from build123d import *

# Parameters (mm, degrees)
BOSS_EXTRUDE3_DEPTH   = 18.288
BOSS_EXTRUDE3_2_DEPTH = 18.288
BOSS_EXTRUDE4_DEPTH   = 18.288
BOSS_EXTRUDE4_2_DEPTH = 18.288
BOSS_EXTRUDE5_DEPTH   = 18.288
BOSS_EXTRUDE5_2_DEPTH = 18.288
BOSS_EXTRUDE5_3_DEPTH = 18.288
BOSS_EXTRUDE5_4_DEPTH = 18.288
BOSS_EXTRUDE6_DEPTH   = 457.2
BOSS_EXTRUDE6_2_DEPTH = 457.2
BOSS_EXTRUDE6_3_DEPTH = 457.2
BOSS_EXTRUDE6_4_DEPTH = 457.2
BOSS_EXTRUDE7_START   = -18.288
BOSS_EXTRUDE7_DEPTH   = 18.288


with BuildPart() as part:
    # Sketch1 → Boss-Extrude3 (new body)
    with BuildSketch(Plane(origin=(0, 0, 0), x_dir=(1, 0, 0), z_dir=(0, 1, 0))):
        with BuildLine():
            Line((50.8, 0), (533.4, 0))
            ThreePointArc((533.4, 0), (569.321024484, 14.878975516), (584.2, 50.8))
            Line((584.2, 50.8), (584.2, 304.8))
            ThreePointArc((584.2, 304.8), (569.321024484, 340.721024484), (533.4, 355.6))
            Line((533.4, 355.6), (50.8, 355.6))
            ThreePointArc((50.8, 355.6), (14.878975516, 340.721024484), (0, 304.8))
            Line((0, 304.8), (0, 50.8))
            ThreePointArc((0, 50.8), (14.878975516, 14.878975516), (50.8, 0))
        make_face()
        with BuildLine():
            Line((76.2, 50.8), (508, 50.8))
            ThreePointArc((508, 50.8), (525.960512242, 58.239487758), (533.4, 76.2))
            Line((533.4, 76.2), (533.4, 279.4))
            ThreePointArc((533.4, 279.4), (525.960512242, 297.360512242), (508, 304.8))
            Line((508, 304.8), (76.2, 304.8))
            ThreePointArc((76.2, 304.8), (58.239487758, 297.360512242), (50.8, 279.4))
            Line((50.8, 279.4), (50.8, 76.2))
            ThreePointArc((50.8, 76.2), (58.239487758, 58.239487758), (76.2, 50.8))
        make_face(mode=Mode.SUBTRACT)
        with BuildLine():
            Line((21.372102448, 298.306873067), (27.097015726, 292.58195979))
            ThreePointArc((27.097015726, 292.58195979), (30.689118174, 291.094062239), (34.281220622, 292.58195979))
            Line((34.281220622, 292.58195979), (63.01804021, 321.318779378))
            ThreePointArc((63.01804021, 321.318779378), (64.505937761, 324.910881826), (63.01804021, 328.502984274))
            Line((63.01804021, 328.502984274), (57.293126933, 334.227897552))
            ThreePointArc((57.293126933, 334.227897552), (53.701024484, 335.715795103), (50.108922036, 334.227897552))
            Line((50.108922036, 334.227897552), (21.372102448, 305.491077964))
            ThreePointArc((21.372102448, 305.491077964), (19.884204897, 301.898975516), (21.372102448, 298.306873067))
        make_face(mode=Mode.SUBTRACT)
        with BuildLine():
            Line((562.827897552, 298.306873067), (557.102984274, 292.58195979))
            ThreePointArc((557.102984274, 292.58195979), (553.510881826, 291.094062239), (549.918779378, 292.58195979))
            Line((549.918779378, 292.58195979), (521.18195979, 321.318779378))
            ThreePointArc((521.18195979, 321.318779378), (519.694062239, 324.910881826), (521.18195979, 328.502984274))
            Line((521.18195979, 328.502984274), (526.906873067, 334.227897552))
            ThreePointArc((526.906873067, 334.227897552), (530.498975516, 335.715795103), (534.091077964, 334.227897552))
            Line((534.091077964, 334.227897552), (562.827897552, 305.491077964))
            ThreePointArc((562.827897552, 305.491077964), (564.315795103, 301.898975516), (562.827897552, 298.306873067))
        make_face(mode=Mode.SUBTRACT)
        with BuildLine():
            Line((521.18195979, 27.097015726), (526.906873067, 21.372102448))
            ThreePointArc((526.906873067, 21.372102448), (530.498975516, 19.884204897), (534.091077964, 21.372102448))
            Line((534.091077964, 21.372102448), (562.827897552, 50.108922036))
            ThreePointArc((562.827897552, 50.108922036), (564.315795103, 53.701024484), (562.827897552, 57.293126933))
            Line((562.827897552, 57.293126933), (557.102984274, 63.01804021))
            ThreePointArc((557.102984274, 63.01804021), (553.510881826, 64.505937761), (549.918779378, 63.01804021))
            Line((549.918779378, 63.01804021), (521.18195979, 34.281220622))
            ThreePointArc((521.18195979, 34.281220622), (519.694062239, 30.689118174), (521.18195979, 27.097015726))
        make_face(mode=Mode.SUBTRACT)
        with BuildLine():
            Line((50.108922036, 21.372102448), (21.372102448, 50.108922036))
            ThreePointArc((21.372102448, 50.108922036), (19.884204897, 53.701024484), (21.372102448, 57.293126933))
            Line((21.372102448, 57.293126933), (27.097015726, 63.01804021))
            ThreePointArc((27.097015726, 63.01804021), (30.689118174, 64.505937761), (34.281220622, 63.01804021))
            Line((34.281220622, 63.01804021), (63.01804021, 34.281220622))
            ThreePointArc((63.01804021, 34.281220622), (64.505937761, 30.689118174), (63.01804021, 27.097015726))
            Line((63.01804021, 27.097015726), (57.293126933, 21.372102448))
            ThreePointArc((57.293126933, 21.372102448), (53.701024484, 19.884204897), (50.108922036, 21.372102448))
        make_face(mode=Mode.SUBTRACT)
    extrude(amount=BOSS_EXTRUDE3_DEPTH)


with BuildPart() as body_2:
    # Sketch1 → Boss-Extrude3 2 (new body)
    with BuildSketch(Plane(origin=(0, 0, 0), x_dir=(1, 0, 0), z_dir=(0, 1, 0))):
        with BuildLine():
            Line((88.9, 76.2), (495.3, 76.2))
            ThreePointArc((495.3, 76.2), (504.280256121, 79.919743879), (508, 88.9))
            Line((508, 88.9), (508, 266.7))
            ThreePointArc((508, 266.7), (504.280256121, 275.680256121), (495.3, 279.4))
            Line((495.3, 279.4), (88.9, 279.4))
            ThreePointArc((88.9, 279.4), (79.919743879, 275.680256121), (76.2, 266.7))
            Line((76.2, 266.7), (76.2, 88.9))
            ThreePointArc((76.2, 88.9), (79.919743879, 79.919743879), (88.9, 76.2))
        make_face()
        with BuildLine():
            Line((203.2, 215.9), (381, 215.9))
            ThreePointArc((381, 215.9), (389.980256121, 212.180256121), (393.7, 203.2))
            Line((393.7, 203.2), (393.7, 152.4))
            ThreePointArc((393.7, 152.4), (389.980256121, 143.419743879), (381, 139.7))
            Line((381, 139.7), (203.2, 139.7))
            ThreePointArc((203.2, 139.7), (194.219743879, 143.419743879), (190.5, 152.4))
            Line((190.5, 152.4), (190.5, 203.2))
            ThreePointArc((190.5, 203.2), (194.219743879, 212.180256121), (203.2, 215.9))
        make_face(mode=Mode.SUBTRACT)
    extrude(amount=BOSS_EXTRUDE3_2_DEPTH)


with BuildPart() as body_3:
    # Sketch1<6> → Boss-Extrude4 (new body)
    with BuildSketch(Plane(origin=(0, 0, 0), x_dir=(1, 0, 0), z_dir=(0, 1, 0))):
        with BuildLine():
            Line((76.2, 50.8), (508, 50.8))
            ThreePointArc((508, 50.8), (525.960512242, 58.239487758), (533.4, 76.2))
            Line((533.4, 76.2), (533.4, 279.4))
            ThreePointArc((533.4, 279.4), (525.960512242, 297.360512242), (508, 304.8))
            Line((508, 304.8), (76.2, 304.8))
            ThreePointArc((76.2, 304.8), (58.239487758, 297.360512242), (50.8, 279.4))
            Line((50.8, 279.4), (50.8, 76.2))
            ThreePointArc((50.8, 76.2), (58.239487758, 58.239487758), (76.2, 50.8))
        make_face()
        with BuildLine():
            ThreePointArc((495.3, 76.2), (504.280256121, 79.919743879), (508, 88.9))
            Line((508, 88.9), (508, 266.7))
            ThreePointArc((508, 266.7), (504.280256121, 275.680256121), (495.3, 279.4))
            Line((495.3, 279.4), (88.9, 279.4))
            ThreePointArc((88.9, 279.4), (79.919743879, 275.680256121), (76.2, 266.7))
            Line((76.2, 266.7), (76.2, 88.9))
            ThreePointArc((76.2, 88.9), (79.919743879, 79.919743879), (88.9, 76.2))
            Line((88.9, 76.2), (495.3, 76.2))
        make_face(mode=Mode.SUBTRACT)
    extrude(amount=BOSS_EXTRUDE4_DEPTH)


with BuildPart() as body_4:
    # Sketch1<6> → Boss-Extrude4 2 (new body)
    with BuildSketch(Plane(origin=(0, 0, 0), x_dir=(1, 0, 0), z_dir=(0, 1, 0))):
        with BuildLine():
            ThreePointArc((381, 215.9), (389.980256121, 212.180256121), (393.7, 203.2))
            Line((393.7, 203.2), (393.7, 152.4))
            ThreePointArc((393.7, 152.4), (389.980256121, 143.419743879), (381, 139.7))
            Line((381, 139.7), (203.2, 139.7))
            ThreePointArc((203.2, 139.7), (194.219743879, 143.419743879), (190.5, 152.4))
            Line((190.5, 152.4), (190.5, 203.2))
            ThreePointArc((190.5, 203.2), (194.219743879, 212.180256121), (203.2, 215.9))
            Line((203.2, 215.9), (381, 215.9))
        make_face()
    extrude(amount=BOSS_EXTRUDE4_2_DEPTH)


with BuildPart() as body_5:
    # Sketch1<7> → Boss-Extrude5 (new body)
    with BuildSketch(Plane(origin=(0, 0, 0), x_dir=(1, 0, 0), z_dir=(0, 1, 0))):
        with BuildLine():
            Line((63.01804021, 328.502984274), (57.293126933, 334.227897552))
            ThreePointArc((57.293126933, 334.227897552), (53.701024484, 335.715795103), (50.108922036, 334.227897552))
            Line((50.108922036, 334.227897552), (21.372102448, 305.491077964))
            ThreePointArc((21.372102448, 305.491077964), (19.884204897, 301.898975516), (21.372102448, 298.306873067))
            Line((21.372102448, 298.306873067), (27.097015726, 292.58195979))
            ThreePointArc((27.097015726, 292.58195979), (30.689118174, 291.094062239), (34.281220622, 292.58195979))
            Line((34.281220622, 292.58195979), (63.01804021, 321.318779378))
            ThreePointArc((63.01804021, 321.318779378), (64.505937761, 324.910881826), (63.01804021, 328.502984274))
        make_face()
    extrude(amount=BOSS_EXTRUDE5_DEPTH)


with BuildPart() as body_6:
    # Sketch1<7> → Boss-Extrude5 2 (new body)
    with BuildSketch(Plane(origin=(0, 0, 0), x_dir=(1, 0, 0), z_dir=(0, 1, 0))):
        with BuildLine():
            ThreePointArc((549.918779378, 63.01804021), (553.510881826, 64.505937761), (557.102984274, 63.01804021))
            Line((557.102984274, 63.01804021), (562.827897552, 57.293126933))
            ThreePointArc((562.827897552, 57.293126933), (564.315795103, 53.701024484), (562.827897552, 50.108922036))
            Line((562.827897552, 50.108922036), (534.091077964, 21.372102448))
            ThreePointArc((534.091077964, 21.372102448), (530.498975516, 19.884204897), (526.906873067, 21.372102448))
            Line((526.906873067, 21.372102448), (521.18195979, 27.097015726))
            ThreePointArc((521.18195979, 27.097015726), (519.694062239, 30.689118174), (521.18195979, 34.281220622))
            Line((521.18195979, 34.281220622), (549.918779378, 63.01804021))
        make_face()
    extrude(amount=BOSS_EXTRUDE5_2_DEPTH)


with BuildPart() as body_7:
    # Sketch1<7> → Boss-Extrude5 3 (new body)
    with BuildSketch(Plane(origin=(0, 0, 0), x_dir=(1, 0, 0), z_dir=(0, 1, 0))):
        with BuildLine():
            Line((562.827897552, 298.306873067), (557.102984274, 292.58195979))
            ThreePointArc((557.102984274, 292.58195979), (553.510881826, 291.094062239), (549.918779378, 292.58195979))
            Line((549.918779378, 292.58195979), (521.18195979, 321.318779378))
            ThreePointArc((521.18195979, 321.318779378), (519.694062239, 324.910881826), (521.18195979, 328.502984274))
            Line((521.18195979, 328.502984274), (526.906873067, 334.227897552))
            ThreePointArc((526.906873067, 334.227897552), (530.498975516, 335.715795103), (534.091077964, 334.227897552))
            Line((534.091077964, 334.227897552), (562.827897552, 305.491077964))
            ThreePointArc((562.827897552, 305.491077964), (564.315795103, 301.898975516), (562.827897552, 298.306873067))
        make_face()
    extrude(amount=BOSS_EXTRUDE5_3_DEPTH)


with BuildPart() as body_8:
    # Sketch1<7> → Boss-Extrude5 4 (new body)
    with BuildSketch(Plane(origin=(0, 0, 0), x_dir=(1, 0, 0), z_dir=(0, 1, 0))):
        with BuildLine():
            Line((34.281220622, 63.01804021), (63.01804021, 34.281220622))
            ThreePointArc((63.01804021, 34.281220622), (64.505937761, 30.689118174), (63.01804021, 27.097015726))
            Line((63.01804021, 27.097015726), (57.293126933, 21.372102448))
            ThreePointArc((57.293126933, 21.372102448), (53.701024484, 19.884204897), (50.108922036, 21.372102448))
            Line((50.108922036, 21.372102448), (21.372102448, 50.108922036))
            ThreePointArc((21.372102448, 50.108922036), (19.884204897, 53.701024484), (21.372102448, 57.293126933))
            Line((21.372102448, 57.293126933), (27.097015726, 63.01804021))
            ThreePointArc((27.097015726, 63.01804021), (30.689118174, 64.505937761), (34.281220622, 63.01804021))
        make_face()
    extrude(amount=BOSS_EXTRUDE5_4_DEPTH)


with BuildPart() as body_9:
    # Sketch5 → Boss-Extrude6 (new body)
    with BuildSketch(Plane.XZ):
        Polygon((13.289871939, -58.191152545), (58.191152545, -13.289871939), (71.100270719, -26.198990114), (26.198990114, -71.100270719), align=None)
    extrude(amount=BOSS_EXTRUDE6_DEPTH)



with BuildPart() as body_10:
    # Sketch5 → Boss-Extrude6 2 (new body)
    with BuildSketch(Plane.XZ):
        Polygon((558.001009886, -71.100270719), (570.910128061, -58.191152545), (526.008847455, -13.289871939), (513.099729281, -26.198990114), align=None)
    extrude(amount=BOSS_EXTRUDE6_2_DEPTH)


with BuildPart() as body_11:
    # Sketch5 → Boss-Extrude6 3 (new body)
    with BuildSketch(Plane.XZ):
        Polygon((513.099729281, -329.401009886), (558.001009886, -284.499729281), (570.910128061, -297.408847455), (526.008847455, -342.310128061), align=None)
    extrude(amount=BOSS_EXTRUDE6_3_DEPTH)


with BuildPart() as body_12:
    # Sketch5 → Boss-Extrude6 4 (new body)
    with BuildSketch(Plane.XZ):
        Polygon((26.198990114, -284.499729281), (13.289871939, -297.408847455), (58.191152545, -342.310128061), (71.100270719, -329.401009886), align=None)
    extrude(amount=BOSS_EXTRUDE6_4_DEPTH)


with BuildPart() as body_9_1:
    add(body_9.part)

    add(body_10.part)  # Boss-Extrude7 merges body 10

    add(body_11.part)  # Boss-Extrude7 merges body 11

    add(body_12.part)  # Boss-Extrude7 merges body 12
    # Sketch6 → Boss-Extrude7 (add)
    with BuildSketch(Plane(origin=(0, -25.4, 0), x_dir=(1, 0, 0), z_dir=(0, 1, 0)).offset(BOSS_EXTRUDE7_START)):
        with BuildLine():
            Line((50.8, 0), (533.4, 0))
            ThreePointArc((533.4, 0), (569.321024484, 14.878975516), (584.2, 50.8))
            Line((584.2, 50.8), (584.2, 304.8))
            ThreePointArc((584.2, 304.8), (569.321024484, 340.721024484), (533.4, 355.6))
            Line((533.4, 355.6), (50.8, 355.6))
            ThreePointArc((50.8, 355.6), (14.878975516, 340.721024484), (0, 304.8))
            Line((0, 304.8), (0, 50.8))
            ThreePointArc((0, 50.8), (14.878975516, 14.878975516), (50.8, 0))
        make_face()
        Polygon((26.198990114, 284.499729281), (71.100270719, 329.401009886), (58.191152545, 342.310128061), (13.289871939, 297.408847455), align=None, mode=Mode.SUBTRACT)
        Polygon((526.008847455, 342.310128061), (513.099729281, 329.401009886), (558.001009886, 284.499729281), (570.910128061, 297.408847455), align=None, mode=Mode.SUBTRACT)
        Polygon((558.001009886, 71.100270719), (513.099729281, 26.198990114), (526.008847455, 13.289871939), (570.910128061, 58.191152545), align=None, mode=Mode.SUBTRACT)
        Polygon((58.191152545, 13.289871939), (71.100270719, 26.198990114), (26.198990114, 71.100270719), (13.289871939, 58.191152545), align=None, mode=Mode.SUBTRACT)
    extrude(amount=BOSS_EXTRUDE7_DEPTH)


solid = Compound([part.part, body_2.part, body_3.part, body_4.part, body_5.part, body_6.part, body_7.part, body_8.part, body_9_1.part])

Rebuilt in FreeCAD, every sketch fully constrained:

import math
import FreeCAD as App
import Part
import Sketcher
from FreeCAD import Vector
Q = App.Units.Quantity


def add_polygon(sketch, points):
    """Adds a closed chain of lines whose ends are joined by coincident constraints."""
    first, n = sketch.GeometryCount, len(points)
    for a, b in zip(points, points[1:] + points[:1]):
        sketch.addGeometry(Part.LineSegment(App.Vector(*a, 0), App.Vector(*b, 0)), False)
    for i in range(n):
        sketch.addConstraint(Sketcher.Constraint("Coincident", first + i, 2, first + (i + 1) % n, 1))

doc = App.newDocument("Part")
body = doc.addObject("PartDesign::Body", "Body")

# Sketch on XZ plane
sketch1 = body.newObject("Sketcher::SketchObject", "Sketch")
sketch1.AttachmentSupport = (doc.getObject("XZ_Plane"), [""])
sketch1.MapMode = "FlatFace"
sketch1.addGeometry([
    Part.LineSegment(Vector(50.8, 0, 0), Vector(533.4, 0, 0)),  # 0
    Part.ArcOfCircle(Part.Circle(Vector(533.4, -50.8, 0), Vector(0, 0, 1), 50.8), math.radians(0), math.radians(90)),  # 1
    Part.LineSegment(Vector(584.2, -50.8, 0), Vector(584.2, -304.8, 0)),  # 2
    Part.ArcOfCircle(Part.Circle(Vector(533.4, -304.8, 0), Vector(0, 0, 1), 50.8), math.radians(-90), math.radians(0)),  # 3
    Part.LineSegment(Vector(533.4, -355.6, 0), Vector(50.8, -355.6, 0)),  # 4
    Part.ArcOfCircle(Part.Circle(Vector(50.8, -304.8, 0), Vector(0, 0, 1), 50.8), math.radians(-180), math.radians(-90)),  # 5
    Part.LineSegment(Vector(0, -304.8, 0), Vector(0, -50.8, 0)),  # 6
    Part.ArcOfCircle(Part.Circle(Vector(50.8, -50.8, 0), Vector(0, 0, 1), 50.8), math.radians(90), math.radians(180)),  # 7
    Part.ArcOfCircle(Part.Circle(Vector(53.701024, -24.964205, 0), Vector(0, 0, 1), 5.08), math.radians(45), math.radians(135)),  # 8
    Part.LineSegment(Vector(50.108922, -21.372102, 0), Vector(21.372102, -50.108922, 0)),  # 9
    Part.ArcOfCircle(Part.Circle(Vector(24.964205, -53.701024, 0), Vector(0, 0, 1), 5.08), math.radians(135), math.radians(225)),  # 10
    Part.LineSegment(Vector(21.372102, -57.293127, 0), Vector(27.097016, -63.01804, 0)),  # 11
    Part.ArcOfCircle(Part.Circle(Vector(30.689118, -59.425938, 0), Vector(0, 0, 1), 5.08), math.radians(-135), math.radians(-45)),  # 12
    Part.LineSegment(Vector(34.281221, -63.01804, 0), Vector(63.01804, -34.281221, 0)),  # 13
    Part.ArcOfCircle(Part.Circle(Vector(59.425938, -30.689118, 0), Vector(0, 0, 1), 5.08), math.radians(-45), math.radians(45)),  # 14
    Part.LineSegment(Vector(63.01804, -27.097016, 0), Vector(57.293127, -21.372102, 0)),  # 15
    Part.LineSegment(Vector(526.906873, -21.372102, 0), Vector(521.18196, -27.097016, 0)),  # 16
    Part.ArcOfCircle(Part.Circle(Vector(524.774062, -30.689118, 0), Vector(0, 0, 1), 5.08), math.radians(135), math.radians(225)),  # 17
    Part.LineSegment(Vector(521.18196, -34.281221, 0), Vector(549.918779, -63.01804, 0)),  # 18
    Part.ArcOfCircle(Part.Circle(Vector(553.510882, -59.425938, 0), Vector(0, 0, 1), 5.08), math.radians(-135), math.radians(-45)),  # 19
    Part.LineSegment(Vector(557.102984, -63.01804, 0), Vector(562.827898, -57.293127, 0)),  # 20
    Part.ArcOfCircle(Part.Circle(Vector(559.235795, -53.701024, 0), Vector(0, 0, 1), 5.08), math.radians(-45), math.radians(45)),  # 21
    Part.LineSegment(Vector(562.827898, -50.108922, 0), Vector(534.091078, -21.372102, 0)),  # 22
    Part.ArcOfCircle(Part.Circle(Vector(530.498976, -24.964205, 0), Vector(0, 0, 1), 5.08), math.radians(45), math.radians(135)),  # 23
    Part.LineSegment(Vector(27.097016, -292.58196, 0), Vector(21.372102, -298.306873, 0)),  # 24
    Part.ArcOfCircle(Part.Circle(Vector(24.964205, -301.898976, 0), Vector(0, 0, 1), 5.08), math.radians(135), math.radians(225)),  # 25
    Part.LineSegment(Vector(21.372102, -305.491078, 0), Vector(50.108922, -334.227898, 0)),  # 26
    Part.ArcOfCircle(Part.Circle(Vector(53.701024, -330.635795, 0), Vector(0, 0, 1), 5.08), math.radians(-135), math.radians(-45)),  # 27
    Part.LineSegment(Vector(57.293127, -334.227898, 0), Vector(63.01804, -328.502984, 0)),  # 28
    Part.ArcOfCircle(Part.Circle(Vector(59.425938, -324.910882, 0), Vector(0, 0, 1), 5.08), math.radians(-45), math.radians(45)),  # 29
    Part.LineSegment(Vector(63.01804, -321.318779, 0), Vector(34.281221, -292.58196, 0)),  # 30
    Part.ArcOfCircle(Part.Circle(Vector(30.689118, -296.174062, 0), Vector(0, 0, 1), 5.08), math.radians(45), math.radians(135)),  # 31
    Part.LineSegment(Vector(508, -50.8, 0), Vector(76.2, -50.8, 0)),  # 32
    Part.ArcOfCircle(Part.Circle(Vector(76.2, -76.2, 0), Vector(0, 0, 1), 25.4), math.radians(90), math.radians(180)),  # 33
    Part.LineSegment(Vector(50.8, -76.2, 0), Vector(50.8, -279.4, 0)),  # 34
    Part.ArcOfCircle(Part.Circle(Vector(76.2, -279.4, 0), Vector(0, 0, 1), 25.4), math.radians(180), math.radians(270)),  # 35
    Part.LineSegment(Vector(76.2, -304.8, 0), Vector(508, -304.8, 0)),  # 36
    Part.ArcOfCircle(Part.Circle(Vector(508, -279.4, 0), Vector(0, 0, 1), 25.4), math.radians(-90), math.radians(0)),  # 37
    Part.LineSegment(Vector(533.4, -279.4, 0), Vector(533.4, -76.2, 0)),  # 38
    Part.ArcOfCircle(Part.Circle(Vector(508, -76.2, 0), Vector(0, 0, 1), 25.4), math.radians(0), math.radians(90)),  # 39
    Part.ArcOfCircle(Part.Circle(Vector(559.235795, -301.898976, 0), Vector(0, 0, 1), 5.08), math.radians(-45), math.radians(45)),  # 40
    Part.LineSegment(Vector(562.827898, -298.306873, 0), Vector(557.102984, -292.58196, 0)),  # 41
    Part.ArcOfCircle(Part.Circle(Vector(553.510882, -296.174062, 0), Vector(0, 0, 1), 5.08), math.radians(45), math.radians(135)),  # 42
    Part.LineSegment(Vector(549.918779, -292.58196, 0), Vector(521.18196, -321.318779, 0)),  # 43
    Part.ArcOfCircle(Part.Circle(Vector(524.774062, -324.910882, 0), Vector(0, 0, 1), 5.08), math.radians(135), math.radians(225)),  # 44
    Part.LineSegment(Vector(521.18196, -328.502984, 0), Vector(526.906873, -334.227898, 0)),  # 45
    Part.ArcOfCircle(Part.Circle(Vector(530.498976, -330.635795, 0), Vector(0, 0, 1), 5.08), math.radians(-135), math.radians(-45)),  # 46
    Part.LineSegment(Vector(534.091078, -334.227898, 0), Vector(562.827898, -305.491078, 0)),  # 47
], False)
sketch1.addConstraint([
    Sketcher.Constraint("Tangent", 0, 2, 1, 2),
    Sketcher.Constraint("Tangent", 1, 1, 2, 1),
    Sketcher.Constraint("Tangent", 2, 2, 3, 2),
    Sketcher.Constraint("Tangent", 3, 1, 4, 1),
    Sketcher.Constraint("Tangent", 4, 2, 5, 2),
    Sketcher.Constraint("Tangent", 5, 1, 6, 1),
    Sketcher.Constraint("Tangent", 6, 2, 7, 2),
    Sketcher.Constraint("Tangent", 7, 1, 0, 1),
    Sketcher.Constraint("Tangent", 8, 2, 9, 1),
    Sketcher.Constraint("Tangent", 9, 2, 10, 1),
    Sketcher.Constraint("Tangent", 10, 2, 11, 1),
    Sketcher.Constraint("Tangent", 11, 2, 12, 1),
    Sketcher.Constraint("Tangent", 12, 2, 13, 1),
    Sketcher.Constraint("Tangent", 13, 2, 14, 1),
    Sketcher.Constraint("Tangent", 14, 2, 15, 1),
    Sketcher.Constraint("Tangent", 15, 2, 8, 1),
    Sketcher.Constraint("Tangent", 16, 2, 17, 1),
    Sketcher.Constraint("Tangent", 17, 2, 18, 1),
    Sketcher.Constraint("Tangent", 18, 2, 19, 1),
    Sketcher.Constraint("Tangent", 19, 2, 20, 1),
    Sketcher.Constraint("Tangent", 20, 2, 21, 1),
    Sketcher.Constraint("Tangent", 21, 2, 22, 1),
    Sketcher.Constraint("Tangent", 22, 2, 23, 1),
    Sketcher.Constraint("Tangent", 23, 2, 16, 1),
    Sketcher.Constraint("Tangent", 24, 2, 25, 1),
    Sketcher.Constraint("Tangent", 25, 2, 26, 1),
    Sketcher.Constraint("Tangent", 26, 2, 27, 1),
    Sketcher.Constraint("Tangent", 27, 2, 28, 1),
    Sketcher.Constraint("Tangent", 28, 2, 29, 1),
    Sketcher.Constraint("Tangent", 29, 2, 30, 1),
    Sketcher.Constraint("Tangent", 30, 2, 31, 1),
    Sketcher.Constraint("Tangent", 31, 2, 24, 1),
    Sketcher.Constraint("Tangent", 32, 2, 33, 1),
    Sketcher.Constraint("Tangent", 33, 2, 34, 1),
    Sketcher.Constraint("Tangent", 34, 2, 35, 1),
    Sketcher.Constraint("Tangent", 35, 2, 36, 1),
    Sketcher.Constraint("Tangent", 36, 2, 37, 1),
    Sketcher.Constraint("Tangent", 37, 2, 38, 1),
    Sketcher.Constraint("Tangent", 38, 2, 39, 1),
    Sketcher.Constraint("Tangent", 39, 2, 32, 1),
    Sketcher.Constraint("Tangent", 40, 2, 41, 1),
    Sketcher.Constraint("Tangent", 41, 2, 42, 1),
    Sketcher.Constraint("Tangent", 42, 2, 43, 1),
    Sketcher.Constraint("Tangent", 43, 2, 44, 1),
    Sketcher.Constraint("Tangent", 44, 2, 45, 1),
    Sketcher.Constraint("Tangent", 45, 2, 46, 1),
    Sketcher.Constraint("Tangent", 46, 2, 47, 1),
    Sketcher.Constraint("Tangent", 47, 2, 40, 1),
    Sketcher.Constraint("Horizontal", 0),
    Sketcher.Constraint("Vertical", 2),
    Sketcher.Constraint("Horizontal", 4),
    Sketcher.Constraint("Vertical", 6),
    Sketcher.Constraint("Horizontal", 32),
    Sketcher.Constraint("Vertical", 34),
    Sketcher.Constraint("Horizontal", 36),
    Sketcher.Constraint("Vertical", 38),
    Sketcher.Constraint("Equal", 1, 3),
    Sketcher.Constraint("Equal", 3, 5),
    Sketcher.Constraint("Equal", 5, 7),
    Sketcher.Constraint("Equal", 8, 10),
    Sketcher.Constraint("Equal", 10, 12),
    Sketcher.Constraint("Equal", 12, 14),
    Sketcher.Constraint("Equal", 14, 17),
    Sketcher.Constraint("Equal", 17, 19),
    Sketcher.Constraint("Equal", 19, 21),
    Sketcher.Constraint("Equal", 21, 23),
    Sketcher.Constraint("Equal", 23, 25),
    Sketcher.Constraint("Equal", 25, 27),
    Sketcher.Constraint("Equal", 27, 29),
    Sketcher.Constraint("Equal", 29, 31),
    Sketcher.Constraint("Equal", 33, 35),
    Sketcher.Constraint("Equal", 35, 37),
    Sketcher.Constraint("Equal", 37, 39),
    Sketcher.Constraint("Equal", 31, 40),
    Sketcher.Constraint("Equal", 40, 42),
    Sketcher.Constraint("Equal", 42, 44),
    Sketcher.Constraint("Equal", 44, 46),
    Sketcher.Constraint("PointOnObject", 0, 2, -1),
    Sketcher.Constraint("PointOnObject", 5, 1, -2),
    Sketcher.Constraint("Perpendicular", 9, 11),
    Sketcher.Constraint("Perpendicular", 11, 13),
    Sketcher.Constraint("Perpendicular", 13, 15),
    Sketcher.Constraint("Perpendicular", 15, 16),
    Sketcher.Constraint("Perpendicular", 16, 18),
    Sketcher.Constraint("Perpendicular", 18, 20),
    Sketcher.Constraint("Perpendicular", 20, 22),
    Sketcher.Constraint("Perpendicular", 22, 24),
    Sketcher.Constraint("Perpendicular", 24, 26),
    Sketcher.Constraint("Perpendicular", 26, 28),
    Sketcher.Constraint("Perpendicular", 28, 30),
    Sketcher.Constraint("Parallel", 30, 41),
    Sketcher.Constraint("Perpendicular", 41, 43),
    Sketcher.Constraint("Perpendicular", 43, 45),
    Sketcher.Constraint("Perpendicular", 45, 47),
    Sketcher.Constraint("Horizontal", 14, 3, 17, 3),
    Sketcher.Constraint("Horizontal", 12, 3, 19, 3),
    Sketcher.Constraint("Horizontal", 10, 3, 21, 3),
    Sketcher.Constraint("Horizontal", 25, 3, 40, 3),
    Sketcher.Constraint("Horizontal", 31, 3, 42, 3),
    Sketcher.Constraint("Horizontal", 29, 3, 44, 3),
    Sketcher.Constraint("Horizontal", 11, 2, 12, 2),
    Sketcher.Constraint("Horizontal", 6, 2, 32, 2),
    Sketcher.Constraint("Horizontal", 5, 1, 35, 2),
    Sketcher.Constraint("Vertical", 10, 3, 25, 3),
    Sketcher.Constraint("Vertical", 8, 3, 27, 3),
    Sketcher.Constraint("Vertical", 14, 3, 29, 3),
    Sketcher.Constraint("Vertical", 21, 3, 40, 3),
    Sketcher.Constraint("Vertical", 7, 1, 33, 2),
    Sketcher.Constraint("Vertical", 3, 1, 37, 2),
    Sketcher.Constraint("Radius", 1, Q("2 in")),
    Sketcher.Constraint("Radius", 33, Q("1 in")),
    Sketcher.Constraint("Radius", 8, Q("0.2 in")),
    Sketcher.Constraint("DistanceX", 0, 1, 0, 2, Q("19 in")),
    Sketcher.Constraint("DistanceY", 2, 2, 2, 1, Q("10 in")),
    Sketcher.Constraint("Distance", 9, Q("1.6 in")),
    Sketcher.Constraint("Distance", 11, Q("8.09625 mm")),
    Sketcher.Constraint("DistanceX", -1, 1, 12, 3, Q("30.689118 mm")),
    Sketcher.Constraint("DistanceY", 14, 3, -1, 1, Q("30.689118 mm")),
    Sketcher.Constraint("DistanceX", -1, 1, 19, 3, Q("553.510882 mm")),
    Sketcher.Constraint("DistanceY", 29, 3, -1, 1, Q("324.910882 mm")),
])
pad1 = body.newObject("PartDesign::Pad", "Pad")
pad1.Profile = sketch1
pad1.Length = Q("0.72 in")
pad1.Reversed = True
body2 = doc.addObject("PartDesign::Body", "Body001")

# Sketch on XZ plane
sketch2 = body2.newObject("Sketcher::SketchObject", "Sketch001")
sketch2.AttachmentSupport = (doc.getObject("XZ_Plane001"), [""])
sketch2.MapMode = "FlatFace"
sketch2.addGeometry([
    Part.LineSegment(Vector(88.9, -76.2, 0), Vector(495.3, -76.2, 0)),  # 0
    Part.ArcOfCircle(Part.Circle(Vector(495.3, -88.9, 0), Vector(0, 0, 1), 12.7), math.radians(0), math.radians(90)),  # 1
    Part.LineSegment(Vector(508, -88.9, 0), Vector(508, -266.7, 0)),  # 2
    Part.ArcOfCircle(Part.Circle(Vector(495.3, -266.7, 0), Vector(0, 0, 1), 12.7), math.radians(-90), math.radians(0)),  # 3
    Part.LineSegment(Vector(495.3, -279.4, 0), Vector(88.9, -279.4, 0)),  # 4
    Part.ArcOfCircle(Part.Circle(Vector(88.9, -266.7, 0), Vector(0, 0, 1), 12.7), math.radians(180), math.radians(270)),  # 5
    Part.LineSegment(Vector(76.2, -266.7, 0), Vector(76.2, -88.9, 0)),  # 6
    Part.ArcOfCircle(Part.Circle(Vector(88.9, -88.9, 0), Vector(0, 0, 1), 12.7), math.radians(90), math.radians(180)),  # 7
    Part.ArcOfCircle(Part.Circle(Vector(203.2, -203.2, 0), Vector(0, 0, 1), 12.7), math.radians(180), math.radians(270)),  # 8
    Part.LineSegment(Vector(203.2, -215.9, 0), Vector(381, -215.9, 0)),  # 9
    Part.ArcOfCircle(Part.Circle(Vector(381, -203.2, 0), Vector(0, 0, 1), 12.7), math.radians(-90), math.radians(0)),  # 10
    Part.LineSegment(Vector(393.7, -203.2, 0), Vector(393.7, -152.4, 0)),  # 11
    Part.ArcOfCircle(Part.Circle(Vector(381, -152.4, 0), Vector(0, 0, 1), 12.7), math.radians(0), math.radians(90)),  # 12
    Part.LineSegment(Vector(381, -139.7, 0), Vector(203.2, -139.7, 0)),  # 13
    Part.ArcOfCircle(Part.Circle(Vector(203.2, -152.4, 0), Vector(0, 0, 1), 12.7), math.radians(90), math.radians(180)),  # 14
    Part.LineSegment(Vector(190.5, -152.4, 0), Vector(190.5, -203.2, 0)),  # 15
], False)
sketch2.addConstraint([
    Sketcher.Constraint("Tangent", 0, 2, 1, 2),
    Sketcher.Constraint("Tangent", 1, 1, 2, 1),
    Sketcher.Constraint("Tangent", 2, 2, 3, 2),
    Sketcher.Constraint("Tangent", 3, 1, 4, 1),
    Sketcher.Constraint("Tangent", 4, 2, 5, 2),
    Sketcher.Constraint("Tangent", 5, 1, 6, 1),
    Sketcher.Constraint("Tangent", 6, 2, 7, 2),
    Sketcher.Constraint("Tangent", 7, 1, 0, 1),
    Sketcher.Constraint("Tangent", 8, 2, 9, 1),
    Sketcher.Constraint("Tangent", 9, 2, 10, 1),
    Sketcher.Constraint("Tangent", 10, 2, 11, 1),
    Sketcher.Constraint("Tangent", 11, 2, 12, 1),
    Sketcher.Constraint("Tangent", 12, 2, 13, 1),
    Sketcher.Constraint("Tangent", 13, 2, 14, 1),
    Sketcher.Constraint("Tangent", 14, 2, 15, 1),
    Sketcher.Constraint("Tangent", 15, 2, 8, 1),
    Sketcher.Constraint("Horizontal", 0),
    Sketcher.Constraint("Vertical", 2),
    Sketcher.Constraint("Horizontal", 4),
    Sketcher.Constraint("Vertical", 6),
    Sketcher.Constraint("Horizontal", 9),
    Sketcher.Constraint("Vertical", 11),
    Sketcher.Constraint("Horizontal", 13),
    Sketcher.Constraint("Vertical", 15),
    Sketcher.Constraint("Equal", 1, 3),
    Sketcher.Constraint("Equal", 3, 5),
    Sketcher.Constraint("Equal", 5, 7),
    Sketcher.Constraint("Equal", 7, 8),
    Sketcher.Constraint("Equal", 8, 10),
    Sketcher.Constraint("Equal", 10, 12),
    Sketcher.Constraint("Equal", 12, 14),
    Sketcher.Constraint("Equal", 13, 2),
    Sketcher.Constraint("Radius", 1, Q("0.5 in")),
    Sketcher.Constraint("DistanceX", 0, 1, 0, 2, Q("16 in")),
    Sketcher.Constraint("DistanceX", 9, 1, 9, 2, Q("7 in")),
    Sketcher.Constraint("DistanceY", 11, 1, 11, 2, Q("2 in")),
    Sketcher.Constraint("DistanceX", -1, 1, 8, 3, Q("8 in")),
    Sketcher.Constraint("DistanceY", 8, 3, -1, 1, Q("8 in")),
    Sketcher.Constraint("DistanceY", 0, 2, -1, 1, Q("3 in")),
    Sketcher.Constraint("DistanceX", -1, 1, 1, 1, Q("20 in")),
])
pad2 = body2.newObject("PartDesign::Pad", "Pad001")
pad2.Profile = sketch2
pad2.Length = Q("0.72 in")
pad2.Reversed = True
body3 = doc.addObject("PartDesign::Body", "Body002")

# Sketch on XZ plane
sketch3 = body3.newObject("Sketcher::SketchObject", "Sketch002")
sketch3.AttachmentSupport = (doc.getObject("XZ_Plane002"), [""])
sketch3.MapMode = "FlatFace"
sketch3.addGeometry([
    Part.LineSegment(Vector(76.2, -50.8, 0), Vector(508, -50.8, 0)),  # 0
    Part.ArcOfCircle(Part.Circle(Vector(508, -76.2, 0), Vector(0, 0, 1), 25.4), math.radians(0), math.radians(90)),  # 1
    Part.LineSegment(Vector(533.4, -76.2, 0), Vector(533.4, -279.4, 0)),  # 2
    Part.ArcOfCircle(Part.Circle(Vector(508, -279.4, 0), Vector(0, 0, 1), 25.4), math.radians(-90), math.radians(0)),  # 3
    Part.LineSegment(Vector(508, -304.8, 0), Vector(76.2, -304.8, 0)),  # 4
    Part.ArcOfCircle(Part.Circle(Vector(76.2, -279.4, 0), Vector(0, 0, 1), 25.4), math.radians(180), math.radians(270)),  # 5
    Part.LineSegment(Vector(50.8, -279.4, 0), Vector(50.8, -76.2, 0)),  # 6
    Part.ArcOfCircle(Part.Circle(Vector(76.2, -76.2, 0), Vector(0, 0, 1), 25.4), math.radians(90), math.radians(180)),  # 7
    Part.ArcOfCircle(Part.Circle(Vector(495.3, -88.9, 0), Vector(0, 0, 1), 12.7), math.radians(0), math.radians(90)),  # 8
    Part.LineSegment(Vector(495.3, -76.2, 0), Vector(88.9, -76.2, 0)),  # 9
    Part.ArcOfCircle(Part.Circle(Vector(88.9, -88.9, 0), Vector(0, 0, 1), 12.7), math.radians(90), math.radians(180)),  # 10
    Part.LineSegment(Vector(76.2, -88.9, 0), Vector(76.2, -266.7, 0)),  # 11
    Part.ArcOfCircle(Part.Circle(Vector(88.9, -266.7, 0), Vector(0, 0, 1), 12.7), math.radians(180), math.radians(270)),  # 12
    Part.LineSegment(Vector(88.9, -279.4, 0), Vector(495.3, -279.4, 0)),  # 13
    Part.ArcOfCircle(Part.Circle(Vector(495.3, -266.7, 0), Vector(0, 0, 1), 12.7), math.radians(-90), math.radians(0)),  # 14
    Part.LineSegment(Vector(508, -266.7, 0), Vector(508, -88.9, 0)),  # 15
], False)
sketch3.addConstraint([
    Sketcher.Constraint("Tangent", 0, 2, 1, 2),
    Sketcher.Constraint("Tangent", 1, 1, 2, 1),
    Sketcher.Constraint("Tangent", 2, 2, 3, 2),
    Sketcher.Constraint("Tangent", 3, 1, 4, 1),
    Sketcher.Constraint("Tangent", 4, 2, 5, 2),
    Sketcher.Constraint("Tangent", 5, 1, 6, 1),
    Sketcher.Constraint("Tangent", 6, 2, 7, 2),
    Sketcher.Constraint("Tangent", 7, 1, 0, 1),
    Sketcher.Constraint("Tangent", 8, 2, 9, 1),
    Sketcher.Constraint("Tangent", 9, 2, 10, 1),
    Sketcher.Constraint("Tangent", 10, 2, 11, 1),
    Sketcher.Constraint("Tangent", 11, 2, 12, 1),
    Sketcher.Constraint("Tangent", 12, 2, 13, 1),
    Sketcher.Constraint("Tangent", 13, 2, 14, 1),
    Sketcher.Constraint("Tangent", 14, 2, 15, 1),
    Sketcher.Constraint("Tangent", 15, 2, 8, 1),
    Sketcher.Constraint("Horizontal", 0),
    Sketcher.Constraint("Vertical", 2),
    Sketcher.Constraint("Horizontal", 4),
    Sketcher.Constraint("Vertical", 6),
    Sketcher.Constraint("Horizontal", 9),
    Sketcher.Constraint("Vertical", 11),
    Sketcher.Constraint("Horizontal", 13),
    Sketcher.Constraint("Vertical", 15),
    Sketcher.Constraint("Equal", 1, 3),
    Sketcher.Constraint("Equal", 3, 5),
    Sketcher.Constraint("Equal", 5, 7),
    Sketcher.Constraint("Equal", 8, 10),
    Sketcher.Constraint("Equal", 10, 12),
    Sketcher.Constraint("Equal", 12, 14),
    Sketcher.Constraint("Horizontal", 6, 2, 8, 2),
    Sketcher.Constraint("Horizontal", 5, 1, 12, 2),
    Sketcher.Constraint("Vertical", 7, 1, 10, 2),
    Sketcher.Constraint("Vertical", 3, 1, 14, 2),
    Sketcher.Constraint("Radius", 1, Q("1 in")),
    Sketcher.Constraint("Radius", 8, Q("0.5 in")),
    Sketcher.Constraint("DistanceX", 0, 1, 0, 2, Q("17 in")),
    Sketcher.Constraint("DistanceY", 2, 2, 2, 1, Q("8 in")),
    Sketcher.Constraint("DistanceX", -1, 1, 1, 3, Q("20 in")),
    Sketcher.Constraint("DistanceY", 1, 3, -1, 1, Q("3 in")),
])
pad3 = body3.newObject("PartDesign::Pad", "Pad002")
pad3.Profile = sketch3
pad3.Length = Q("0.72 in")
pad3.Reversed = True
body4 = doc.addObject("PartDesign::Body", "Body003")

# Sketch on XZ plane
sketch4 = body4.newObject("Sketcher::SketchObject", "Sketch003")
sketch4.AttachmentSupport = (doc.getObject("XZ_Plane003"), [""])
sketch4.MapMode = "FlatFace"
sketch4.addGeometry([
    Part.ArcOfCircle(Part.Circle(Vector(381, -203.2, 0), Vector(0, 0, 1), 12.7), math.radians(-90), math.radians(0)),  # 0
    Part.LineSegment(Vector(381, -215.9, 0), Vector(203.2, -215.9, 0)),  # 1
    Part.ArcOfCircle(Part.Circle(Vector(203.2, -203.2, 0), Vector(0, 0, 1), 12.7), math.radians(180), math.radians(270)),  # 2
    Part.LineSegment(Vector(190.5, -203.2, 0), Vector(190.5, -152.4, 0)),  # 3
    Part.ArcOfCircle(Part.Circle(Vector(203.2, -152.4, 0), Vector(0, 0, 1), 12.7), math.radians(90), math.radians(180)),  # 4
    Part.LineSegment(Vector(203.2, -139.7, 0), Vector(381, -139.7, 0)),  # 5
    Part.ArcOfCircle(Part.Circle(Vector(381, -152.4, 0), Vector(0, 0, 1), 12.7), math.radians(0), math.radians(90)),  # 6
    Part.LineSegment(Vector(393.7, -152.4, 0), Vector(393.7, -203.2, 0)),  # 7
], False)
sketch4.addConstraint([
    Sketcher.Constraint("Tangent", 0, 1, 1, 1),
    Sketcher.Constraint("Tangent", 1, 2, 2, 2),
    Sketcher.Constraint("Tangent", 2, 1, 3, 1),
    Sketcher.Constraint("Tangent", 3, 2, 4, 2),
    Sketcher.Constraint("Tangent", 4, 1, 5, 1),
    Sketcher.Constraint("Tangent", 5, 2, 6, 2),
    Sketcher.Constraint("Tangent", 6, 1, 7, 1),
    Sketcher.Constraint("Tangent", 7, 2, 0, 2),
    Sketcher.Constraint("Horizontal", 1),
    Sketcher.Constraint("Vertical", 3),
    Sketcher.Constraint("Horizontal", 5),
    Sketcher.Constraint("Vertical", 7),
    Sketcher.Constraint("Equal", 0, 2),
    Sketcher.Constraint("Equal", 2, 4),
    Sketcher.Constraint("Equal", 4, 6),
    Sketcher.Constraint("Radius", 0, Q("0.5 in")),
    Sketcher.Constraint("DistanceX", 1, 2, 1, 1, Q("7 in")),
    Sketcher.Constraint("DistanceY", 3, 1, 3, 2, Q("2 in")),
    Sketcher.Constraint("DistanceX", -1, 1, 0, 3, Q("15 in")),
    Sketcher.Constraint("DistanceY", 0, 3, -1, 1, Q("8 in")),
])
pad4 = body4.newObject("PartDesign::Pad", "Pad003")
pad4.Profile = sketch4
pad4.Length = Q("0.72 in")
pad4.Reversed = True
body5 = doc.addObject("PartDesign::Body", "Body004")

# Sketch on XZ plane
sketch5 = body5.newObject("Sketcher::SketchObject", "Sketch004")
sketch5.AttachmentSupport = (doc.getObject("XZ_Plane004"), [""])
sketch5.MapMode = "FlatFace"
sketch5.addGeometry([
    Part.LineSegment(Vector(63.01804, -328.502984, 0), Vector(57.293127, -334.227898, 0)),  # 0
    Part.ArcOfCircle(Part.Circle(Vector(53.701024, -330.635795, 0), Vector(0, 0, 1), 5.08), math.radians(-135), math.radians(-45)),  # 1
    Part.LineSegment(Vector(50.108922, -334.227898, 0), Vector(21.372102, -305.491078, 0)),  # 2
    Part.ArcOfCircle(Part.Circle(Vector(24.964205, -301.898976, 0), Vector(0, 0, 1), 5.08), math.radians(135), math.radians(225)),  # 3
    Part.LineSegment(Vector(21.372102, -298.306873, 0), Vector(27.097016, -292.58196, 0)),  # 4
    Part.ArcOfCircle(Part.Circle(Vector(30.689118, -296.174062, 0), Vector(0, 0, 1), 5.08), math.radians(45), math.radians(135)),  # 5
    Part.LineSegment(Vector(34.281221, -292.58196, 0), Vector(63.01804, -321.318779, 0)),  # 6
    Part.ArcOfCircle(Part.Circle(Vector(59.425938, -324.910882, 0), Vector(0, 0, 1), 5.08), math.radians(-45), math.radians(45)),  # 7
], False)
sketch5.addConstraint([
    Sketcher.Constraint("Tangent", 0, 2, 1, 2),
    Sketcher.Constraint("Tangent", 1, 1, 2, 1),
    Sketcher.Constraint("Tangent", 2, 2, 3, 2),
    Sketcher.Constraint("Tangent", 3, 1, 4, 1),
    Sketcher.Constraint("Tangent", 4, 2, 5, 2),
    Sketcher.Constraint("Tangent", 5, 1, 6, 1),
    Sketcher.Constraint("Tangent", 6, 2, 7, 2),
    Sketcher.Constraint("Tangent", 7, 1, 0, 1),
    Sketcher.Constraint("Equal", 1, 3),
    Sketcher.Constraint("Equal", 3, 5),
    Sketcher.Constraint("Equal", 5, 7),
    Sketcher.Constraint("Perpendicular", 0, 2),
    Sketcher.Constraint("Perpendicular", 2, 4),
    Sketcher.Constraint("Perpendicular", 4, 6),
    Sketcher.Constraint("Horizontal", 0, 2, 1, 1),
    Sketcher.Constraint("Radius", 1, Q("0.2 in")),
    Sketcher.Constraint("Distance", 2, Q("1.6 in")),
    Sketcher.Constraint("Distance", 0, Q("8.09625 mm")),
    Sketcher.Constraint("DistanceX", -1, 1, 5, 3, Q("30.689118 mm")),
    Sketcher.Constraint("DistanceY", 7, 3, -1, 1, Q("324.910882 mm")),
])
pad5 = body5.newObject("PartDesign::Pad", "Pad004")
pad5.Profile = sketch5
pad5.Length = Q("0.72 in")
pad5.Reversed = True
body6 = doc.addObject("PartDesign::Body", "Body005")

# Sketch on XZ plane
sketch6 = body6.newObject("Sketcher::SketchObject", "Sketch005")
sketch6.AttachmentSupport = (doc.getObject("XZ_Plane005"), [""])
sketch6.MapMode = "FlatFace"
sketch6.addGeometry([
    Part.ArcOfCircle(Part.Circle(Vector(553.510882, -59.425938, 0), Vector(0, 0, 1), 5.08), math.radians(-135), math.radians(-45)),  # 0
    Part.LineSegment(Vector(549.918779, -63.01804, 0), Vector(521.18196, -34.281221, 0)),  # 1
    Part.ArcOfCircle(Part.Circle(Vector(524.774062, -30.689118, 0), Vector(0, 0, 1), 5.08), math.radians(135), math.radians(225)),  # 2
    Part.LineSegment(Vector(521.18196, -27.097016, 0), Vector(526.906873, -21.372102, 0)),  # 3
    Part.ArcOfCircle(Part.Circle(Vector(530.498976, -24.964205, 0), Vector(0, 0, 1), 5.08), math.radians(45), math.radians(135)),  # 4
    Part.LineSegment(Vector(534.091078, -21.372102, 0), Vector(562.827898, -50.108922, 0)),  # 5
    Part.ArcOfCircle(Part.Circle(Vector(559.235795, -53.701024, 0), Vector(0, 0, 1), 5.08), math.radians(-45), math.radians(45)),  # 6
    Part.LineSegment(Vector(562.827898, -57.293127, 0), Vector(557.102984, -63.01804, 0)),  # 7
], False)
sketch6.addConstraint([
    Sketcher.Constraint("Tangent", 0, 1, 1, 1),
    Sketcher.Constraint("Tangent", 1, 2, 2, 2),
    Sketcher.Constraint("Tangent", 2, 1, 3, 1),
    Sketcher.Constraint("Tangent", 3, 2, 4, 2),
    Sketcher.Constraint("Tangent", 4, 1, 5, 1),
    Sketcher.Constraint("Tangent", 5, 2, 6, 2),
    Sketcher.Constraint("Tangent", 6, 1, 7, 1),
    Sketcher.Constraint("Tangent", 7, 2, 0, 2),
    Sketcher.Constraint("Equal", 0, 2),
    Sketcher.Constraint("Equal", 2, 4),
    Sketcher.Constraint("Equal", 4, 6),
    Sketcher.Constraint("Perpendicular", 1, 3),
    Sketcher.Constraint("Perpendicular", 3, 5),
    Sketcher.Constraint("Perpendicular", 5, 7),
    Sketcher.Constraint("Horizontal", 3, 2, 4, 1),
    Sketcher.Constraint("Radius", 0, Q("0.2 in")),
    Sketcher.Constraint("Distance", 1, Q("1.6 in")),
    Sketcher.Constraint("Distance", 3, Q("8.09625 mm")),
    Sketcher.Constraint("DistanceX", -1, 1, 0, 3, Q("553.510882 mm")),
    Sketcher.Constraint("DistanceY", 2, 3, -1, 1, Q("30.689118 mm")),
])
pad6 = body6.newObject("PartDesign::Pad", "Pad005")
pad6.Profile = sketch6
pad6.Length = Q("0.72 in")
pad6.Reversed = True
body7 = doc.addObject("PartDesign::Body", "Body006")

# Sketch on XZ plane
sketch7 = body7.newObject("Sketcher::SketchObject", "Sketch006")
sketch7.AttachmentSupport = (doc.getObject("XZ_Plane006"), [""])
sketch7.MapMode = "FlatFace"
sketch7.addGeometry([
    Part.LineSegment(Vector(557.102984, -292.58196, 0), Vector(562.827898, -298.306873, 0)),  # 0
    Part.ArcOfCircle(Part.Circle(Vector(559.235795, -301.898976, 0), Vector(0, 0, 1), 5.08), math.radians(-45), math.radians(45)),  # 1
    Part.LineSegment(Vector(562.827898, -305.491078, 0), Vector(534.091078, -334.227898, 0)),  # 2
    Part.ArcOfCircle(Part.Circle(Vector(530.498976, -330.635795, 0), Vector(0, 0, 1), 5.08), math.radians(-135), math.radians(-45)),  # 3
    Part.LineSegment(Vector(526.906873, -334.227898, 0), Vector(521.18196, -328.502984, 0)),  # 4
    Part.ArcOfCircle(Part.Circle(Vector(524.774062, -324.910882, 0), Vector(0, 0, 1), 5.08), math.radians(135), math.radians(225)),  # 5
    Part.LineSegment(Vector(521.18196, -321.318779, 0), Vector(549.918779, -292.58196, 0)),  # 6
    Part.ArcOfCircle(Part.Circle(Vector(553.510882, -296.174062, 0), Vector(0, 0, 1), 5.08), math.radians(45), math.radians(135)),  # 7
], False)
sketch7.addConstraint([
    Sketcher.Constraint("Tangent", 0, 2, 1, 2),
    Sketcher.Constraint("Tangent", 1, 1, 2, 1),
    Sketcher.Constraint("Tangent", 2, 2, 3, 2),
    Sketcher.Constraint("Tangent", 3, 1, 4, 1),
    Sketcher.Constraint("Tangent", 4, 2, 5, 2),
    Sketcher.Constraint("Tangent", 5, 1, 6, 1),
    Sketcher.Constraint("Tangent", 6, 2, 7, 2),
    Sketcher.Constraint("Tangent", 7, 1, 0, 1),
    Sketcher.Constraint("Equal", 1, 3),
    Sketcher.Constraint("Equal", 3, 5),
    Sketcher.Constraint("Equal", 5, 7),
    Sketcher.Constraint("Perpendicular", 0, 2),
    Sketcher.Constraint("Perpendicular", 2, 4),
    Sketcher.Constraint("Perpendicular", 4, 6),
    Sketcher.Constraint("Horizontal", 2, 2, 3, 1),
    Sketcher.Constraint("Radius", 1, Q("0.2 in")),
    Sketcher.Constraint("Distance", 2, Q("1.6 in")),
    Sketcher.Constraint("Distance", 0, Q("8.09625 mm")),
    Sketcher.Constraint("DistanceY", 5, 3, -1, 1, Q("324.910882 mm")),
    Sketcher.Constraint("DistanceX", -1, 1, 7, 3, Q("553.510882 mm")),
])
pad7 = body7.newObject("PartDesign::Pad", "Pad006")
pad7.Profile = sketch7
pad7.Length = Q("0.72 in")
pad7.Reversed = True
body8 = doc.addObject("PartDesign::Body", "Body007")

# Sketch on XZ plane
sketch8 = body8.newObject("Sketcher::SketchObject", "Sketch007")
sketch8.AttachmentSupport = (doc.getObject("XZ_Plane007"), [""])
sketch8.MapMode = "FlatFace"
sketch8.addGeometry([
    Part.LineSegment(Vector(63.01804, -34.281221, 0), Vector(34.281221, -63.01804, 0)),  # 0
    Part.ArcOfCircle(Part.Circle(Vector(30.689118, -59.425938, 0), Vector(0, 0, 1), 5.08), math.radians(-135), math.radians(-45)),  # 1
    Part.LineSegment(Vector(27.097016, -63.01804, 0), Vector(21.372102, -57.293127, 0)),  # 2
    Part.ArcOfCircle(Part.Circle(Vector(24.964205, -53.701024, 0), Vector(0, 0, 1), 5.08), math.radians(135), math.radians(225)),  # 3
    Part.LineSegment(Vector(21.372102, -50.108922, 0), Vector(50.108922, -21.372102, 0)),  # 4
    Part.ArcOfCircle(Part.Circle(Vector(53.701024, -24.964205, 0), Vector(0, 0, 1), 5.08), math.radians(45), math.radians(135)),  # 5
    Part.LineSegment(Vector(57.293127, -21.372102, 0), Vector(63.01804, -27.097016, 0)),  # 6
    Part.ArcOfCircle(Part.Circle(Vector(59.425938, -30.689118, 0), Vector(0, 0, 1), 5.08), math.radians(-45), math.radians(45)),  # 7
], False)
sketch8.addConstraint([
    Sketcher.Constraint("Tangent", 0, 2, 1, 2),
    Sketcher.Constraint("Tangent", 1, 1, 2, 1),
    Sketcher.Constraint("Tangent", 2, 2, 3, 2),
    Sketcher.Constraint("Tangent", 3, 1, 4, 1),
    Sketcher.Constraint("Tangent", 4, 2, 5, 2),
    Sketcher.Constraint("Tangent", 5, 1, 6, 1),
    Sketcher.Constraint("Tangent", 6, 2, 7, 2),
    Sketcher.Constraint("Tangent", 7, 1, 0, 1),
    Sketcher.Constraint("Equal", 1, 3),
    Sketcher.Constraint("Equal", 3, 5),
    Sketcher.Constraint("Equal", 5, 7),
    Sketcher.Constraint("Perpendicular", 0, 2),
    Sketcher.Constraint("Perpendicular", 2, 4),
    Sketcher.Constraint("Perpendicular", 4, 6),
    Sketcher.Constraint("Horizontal", 0, 2, 1, 1),
    Sketcher.Constraint("Radius", 1, Q("0.2 in")),
    Sketcher.Constraint("Distance", 0, Q("1.6 in")),
    Sketcher.Constraint("Distance", 2, Q("8.09625 mm")),
    Sketcher.Constraint("DistanceX", -1, 1, 1, 3, Q("30.689118 mm")),
    Sketcher.Constraint("DistanceY", 7, 3, -1, 1, Q("30.689118 mm")),
])
pad8 = body8.newObject("PartDesign::Pad", "Pad007")
pad8.Profile = sketch8
pad8.Length = Q("0.72 in")
pad8.Reversed = True
body9 = doc.addObject("PartDesign::Body", "Body008")

# Sketch on XZ plane
sketch9 = body9.newObject("Sketcher::SketchObject", "Sketch008")
sketch9.AttachmentSupport = (doc.getObject("XZ_Plane008"), [""])
sketch9.MapMode = "FlatFace"
add_polygon(sketch9, [(58.191153, -13.289872), (13.289872, -58.191153), (26.19899, -71.100271), (71.100271, -26.19899)])  # lines 0-3
sketch9.addConstraint([
    Sketcher.Constraint("Perpendicular", 0, 1),
    Sketcher.Constraint("Perpendicular", 1, 2),
    Sketcher.Constraint("Perpendicular", 2, 3),
    Sketcher.Constraint("Angle", 0, Q("-135 deg")),
    Sketcher.Constraint("Distance", 0, Q("2.5 in")),
    Sketcher.Constraint("Distance", 1, Q("0.71875 in")),
    Sketcher.Constraint("DistanceX", -1, 1, 0, 2, Q("13.289872 mm")),
    Sketcher.Constraint("DistanceY", 1, 2, -1, 1, Q("71.100271 mm")),
])
pad9 = body9.newObject("PartDesign::Pad", "Pad008")
pad9.Profile = sketch9
pad9.Length = Q("18 in")
body10 = doc.addObject("PartDesign::Body", "Body009")

# Sketch on XZ plane
sketch10 = body10.newObject("Sketcher::SketchObject", "Sketch009")
sketch10.AttachmentSupport = (doc.getObject("XZ_Plane009"), [""])
sketch10.MapMode = "FlatFace"
add_polygon(sketch10, [(558.00101, -71.100271), (570.910128, -58.191153), (526.008847, -13.289872), (513.099729, -26.19899)])  # lines 0-3
sketch10.addConstraint([
    Sketcher.Constraint("Perpendicular", 0, 1),
    Sketcher.Constraint("Perpendicular", 1, 2),
    Sketcher.Constraint("Perpendicular", 2, 3),
    Sketcher.Constraint("Angle", 0, Q("45 deg")),
    Sketcher.Constraint("Distance", 1, Q("2.5 in")),
    Sketcher.Constraint("Distance", 0, Q("0.71875 in")),
    Sketcher.Constraint("DistanceX", -1, 1, 0, 2, Q("570.910128 mm")),
    Sketcher.Constraint("DistanceY", 1, 2, -1, 1, Q("13.289872 mm")),
])
pad10 = body10.newObject("PartDesign::Pad", "Pad009")
pad10.Profile = sketch10
pad10.Length = Q("18 in")
body11 = doc.addObject("PartDesign::Body", "Body010")

# Sketch on XZ plane
sketch11 = body11.newObject("Sketcher::SketchObject", "Sketch010")
sketch11.AttachmentSupport = (doc.getObject("XZ_Plane010"), [""])
sketch11.MapMode = "FlatFace"
add_polygon(sketch11, [(558.00101, -284.499729), (513.099729, -329.40101), (526.008847, -342.310128), (570.910128, -297.408847)])  # lines 0-3
sketch11.addConstraint([
    Sketcher.Constraint("Perpendicular", 0, 1),
    Sketcher.Constraint("Perpendicular", 1, 2),
    Sketcher.Constraint("Perpendicular", 2, 3),
    Sketcher.Constraint("Angle", 0, Q("-135 deg")),
    Sketcher.Constraint("Distance", 0, Q("2.5 in")),
    Sketcher.Constraint("Distance", 1, Q("0.71875 in")),
    Sketcher.Constraint("DistanceX", -1, 1, 0, 2, Q("513.099729 mm")),
    Sketcher.Constraint("DistanceY", 0, 2, -1, 1, Q("329.40101 mm")),
])
pad11 = body11.newObject("PartDesign::Pad", "Pad010")
pad11.Profile = sketch11
pad11.Length = Q("18 in")
body12 = doc.addObject("PartDesign::Body", "Body011")

# Sketch on XZ plane
sketch12 = body12.newObject("Sketcher::SketchObject", "Sketch011")
sketch12.AttachmentSupport = (doc.getObject("XZ_Plane011"), [""])
sketch12.MapMode = "FlatFace"
add_polygon(sketch12, [(26.19899, -284.499729), (13.289872, -297.408847), (58.191153, -342.310128), (71.100271, -329.40101)])  # lines 0-3
sketch12.addConstraint([
    Sketcher.Constraint("Perpendicular", 0, 1),
    Sketcher.Constraint("Perpendicular", 1, 2),
    Sketcher.Constraint("Perpendicular", 2, 3),
    Sketcher.Constraint("Angle", 0, Q("-135 deg")),
    Sketcher.Constraint("Distance", 1, Q("2.5 in")),
    Sketcher.Constraint("Distance", 0, Q("0.71875 in")),
    Sketcher.Constraint("DistanceX", -1, 1, 0, 2, Q("13.289872 mm")),
    Sketcher.Constraint("DistanceY", 1, 2, -1, 1, Q("342.310128 mm")),
])
pad12 = body12.newObject("PartDesign::Pad", "Pad011")
pad12.Profile = sketch12
pad12.Length = Q("18 in")
body9.AllowCompound = True
doc.recompute()

boolean = body9.newObject("PartDesign::Boolean", "Boolean")
boolean.Type = "Fuse"
boolean.addObjects([body10])
doc.recompute()

boolean2 = body9.newObject("PartDesign::Boolean", "Boolean001")
boolean2.Type = "Fuse"
boolean2.addObjects([body11])
doc.recompute()

boolean3 = body9.newObject("PartDesign::Boolean", "Boolean002")
boolean3.Type = "Fuse"
boolean3.addObjects([body12])

# Sketch on XZ plane
sketch13 = body9.newObject("Sketcher::SketchObject", "Sketch012")
sketch13.AttachmentSupport = (doc.getObject("XZ_Plane008"), [""])
sketch13.MapMode = "FlatFace"
sketch13.AttachmentOffset = App.Placement(Vector(0, 0, 1.72 * 25.4), App.Rotation())
sketch13.addGeometry(Part.LineSegment(Vector(50.8, 0, 0), Vector(533.4, 0, 0)), False)  # 0
sketch13.addGeometry(Part.ArcOfCircle(Part.Circle(Vector(533.4, -50.8, 0), Vector(0, 0, 1), 50.8), math.radians(0), math.radians(90)), False)  # 1
sketch13.addGeometry(Part.LineSegment(Vector(584.2, -50.8, 0), Vector(584.2, -304.8, 0)), False)  # 2
sketch13.addGeometry(Part.ArcOfCircle(Part.Circle(Vector(533.4, -304.8, 0), Vector(0, 0, 1), 50.8), math.radians(-90), math.radians(0)), False)  # 3
sketch13.addGeometry(Part.LineSegment(Vector(533.4, -355.6, 0), Vector(50.8, -355.6, 0)), False)  # 4
sketch13.addGeometry(Part.ArcOfCircle(Part.Circle(Vector(50.8, -304.8, 0), Vector(0, 0, 1), 50.8), math.radians(-180), math.radians(-90)), False)  # 5
sketch13.addGeometry(Part.LineSegment(Vector(0, -304.8, 0), Vector(0, -50.8, 0)), False)  # 6
sketch13.addGeometry(Part.ArcOfCircle(Part.Circle(Vector(50.8, -50.8, 0), Vector(0, 0, 1), 50.8), math.radians(90), math.radians(180)), False)  # 7
add_polygon(sketch13, [(71.100271, -26.19899), (58.191153, -13.289872), (13.289872, -58.191153), (26.19899, -71.100271)])  # lines 8-11
add_polygon(sketch13, [(513.099729, -26.19899), (558.00101, -71.100271), (570.910128, -58.191153), (526.008847, -13.289872)])  # lines 12-15
add_polygon(sketch13, [(71.100271, -329.40101), (26.19899, -284.499729), (13.289872, -297.408847), (58.191153, -342.310128)])  # lines 16-19
add_polygon(sketch13, [(513.099729, -329.40101), (526.008847, -342.310128), (570.910128, -297.408847), (558.00101, -284.499729)])  # lines 20-23
sketch13.addConstraint([
    Sketcher.Constraint("Tangent", 0, 2, 1, 2),
    Sketcher.Constraint("Tangent", 1, 1, 2, 1),
    Sketcher.Constraint("Tangent", 2, 2, 3, 2),
    Sketcher.Constraint("Tangent", 3, 1, 4, 1),
    Sketcher.Constraint("Tangent", 4, 2, 5, 2),
    Sketcher.Constraint("Tangent", 5, 1, 6, 1),
    Sketcher.Constraint("Tangent", 6, 2, 7, 2),
    Sketcher.Constraint("Tangent", 7, 1, 0, 1),
    Sketcher.Constraint("Horizontal", 0),
    Sketcher.Constraint("Vertical", 2),
    Sketcher.Constraint("Horizontal", 4),
    Sketcher.Constraint("Vertical", 6),
    Sketcher.Constraint("Equal", 1, 3),
    Sketcher.Constraint("Equal", 3, 5),
    Sketcher.Constraint("Equal", 5, 7),
    Sketcher.Constraint("PointOnObject", 0, 2, -1),
    Sketcher.Constraint("PointOnObject", 5, 1, -2),
    Sketcher.Constraint("Perpendicular", 8, 9),
    Sketcher.Constraint("Perpendicular", 9, 10),
    Sketcher.Constraint("Perpendicular", 10, 11),
    Sketcher.Constraint("Perpendicular", 11, 12),
    Sketcher.Constraint("Perpendicular", 12, 13),
    Sketcher.Constraint("Perpendicular", 13, 14),
    Sketcher.Constraint("Perpendicular", 14, 15),
    Sketcher.Constraint("Perpendicular", 15, 16),
    Sketcher.Constraint("Perpendicular", 16, 17),
    Sketcher.Constraint("Perpendicular", 17, 18),
    Sketcher.Constraint("Perpendicular", 18, 19),
    Sketcher.Constraint("Perpendicular", 19, 20),
    Sketcher.Constraint("Perpendicular", 20, 21),
    Sketcher.Constraint("Perpendicular", 21, 22),
    Sketcher.Constraint("Perpendicular", 22, 23),
    Sketcher.Constraint("Horizontal", 10, 2, 12, 2),
    Sketcher.Constraint("Horizontal", 9, 2, 13, 2),
    Sketcher.Constraint("Horizontal", 8, 2, 14, 2),
    Sketcher.Constraint("Horizontal", 18, 2, 20, 2),
    Sketcher.Constraint("Horizontal", 17, 2, 21, 2),
    Sketcher.Constraint("Horizontal", 16, 2, 22, 2),
    Sketcher.Constraint("Vertical", 10, 2, 16, 2),
    Sketcher.Constraint("Vertical", 9, 2, 17, 2),
    Sketcher.Constraint("Vertical", 8, 2, 18, 2),
    Sketcher.Constraint("Vertical", 14, 2, 20, 2),
    Sketcher.Constraint("Vertical", 13, 2, 21, 2),
    Sketcher.Constraint("Radius", 1, Q("2 in")),
    Sketcher.Constraint("DistanceX", 0, 1, 0, 2, Q("19 in")),
    Sketcher.Constraint("DistanceY", 2, 2, 2, 1, Q("10 in")),
    Sketcher.Constraint("Distance", 9, Q("2.5 in")),
    Sketcher.Constraint("Distance", 8, Q("0.71875 in")),
    Sketcher.Constraint("DistanceY", 8, 2, -1, 1, Q("13.289872 mm")),
    Sketcher.Constraint("DistanceX", -1, 1, 9, 2, Q("13.289872 mm")),
    Sketcher.Constraint("DistanceX", -1, 1, 12, 2, Q("558.00101 mm")),
    Sketcher.Constraint("DistanceY", 16, 2, -1, 1, Q("284.499729 mm")),
])
pad13 = body9.newObject("PartDesign::Pad", "Pad012")
pad13.Profile = sketch13
pad13.Length = Q("0.72 in")
pad13.Reversed = True

doc.recompute()
